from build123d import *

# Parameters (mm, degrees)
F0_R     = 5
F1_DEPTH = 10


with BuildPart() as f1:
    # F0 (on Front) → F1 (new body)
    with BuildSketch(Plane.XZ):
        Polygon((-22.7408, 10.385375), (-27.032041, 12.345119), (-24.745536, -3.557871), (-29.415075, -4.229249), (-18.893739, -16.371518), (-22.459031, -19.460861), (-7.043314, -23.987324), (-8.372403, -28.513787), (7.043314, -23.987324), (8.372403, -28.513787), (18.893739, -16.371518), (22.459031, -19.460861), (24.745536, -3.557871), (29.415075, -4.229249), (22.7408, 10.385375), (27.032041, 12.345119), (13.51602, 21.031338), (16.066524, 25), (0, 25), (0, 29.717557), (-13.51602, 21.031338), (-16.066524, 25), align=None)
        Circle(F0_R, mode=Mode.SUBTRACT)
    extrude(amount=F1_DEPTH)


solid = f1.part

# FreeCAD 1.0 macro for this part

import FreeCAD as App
import Part
import Sketcher

V = App.Vector
Q = App.Units.Quantity

doc = App.newDocument("Part")
body = doc.addObject("PartDesign::Body", "Body")

# Sketch on XZ plane
sketch1 = body.newObject("Sketcher::SketchObject", "Sketch")
sketch1.AttachmentSupport = (doc.getObject("XZ_Plane"), [""])
sketch1.MapMode = "FlatFace"
sketch1.addGeometry([
    Part.LineSegment(V(-22.7, 10.4, 0), V(-27, 12.3, 0)),  # 0
    Part.LineSegment(V(-27, 12.3, 0), V(-24.7, -3.6, 0)),  # 1
    Part.LineSegment(V(-24.7, -3.6, 0), V(-29.4, -4.2, 0)),  # 2
    Part.LineSegment(V(-29.4, -4.2, 0), V(-18.9, -16.4, 0)),  # 3
    Part.LineSegment(V(-18.9, -16.4, 0), V(-22.5, -19.5, 0)),  # 4
    Part.LineSegment(V(-22.5, -19.5, 0), V(-7, -24, 0)),  # 5
    Part.LineSegment(V(-7, -24, 0), V(-8.4, -28.5, 0)),  # 6
    Part.LineSegment(V(-8.4, -28.5, 0), V(7, -24, 0)),  # 7
    Part.LineSegment(V(7, -24, 0), V(8.4, -28.5, 0)),  # 8
    Part.LineSegment(V(8.4, -28.5, 0), V(18.9, -16.4, 0)),  # 9
    Part.LineSegment(V(18.9, -16.4, 0), V(22.5, -19.5, 0)),  # 10
    Part.LineSegment(V(22.5, -19.5, 0), V(24.7, -3.6, 0)),  # 11
    Part.LineSegment(V(24.7, -3.6, 0), V(29.4, -4.2, 0)),  # 12
    Part.LineSegment(V(29.4, -4.2, 0), V(22.7, 10.4, 0)),  # 13
    Part.LineSegment(V(22.7, 10.4, 0), V(27, 12.3, 0)),  # 14
    Part.LineSegment(V(27, 12.3, 0), V(13.5, 21, 0)),  # 15
    Part.LineSegment(V(13.5, 21, 0), V(16.1, 25, 0)),  # 16
    Part.LineSegment(V(16.1, 25, 0), V(0, 25, 0)),  # 17
    Part.LineSegment(V(0, 25, 0), V(0, 29.7, 0)),  # 18
    Part.LineSegment(V(0, 29.7, 0), V(-13.5, 21, 0)),  # 19
    Part.LineSegment(V(-13.5, 21, 0), V(-16.1, 25, 0)),  # 20
    Part.LineSegment(V(-16.1, 25, 0), V(-22.7, 10.4, 0)),  # 21
    Part.Circle(V(0, 0, 0), V(0, 0, 1), 5),  # 22
], False)
sketch1.addConstraint([
    Sketcher.Constraint("Coincident", 0, 2, 1, 1),
    Sketcher.Constraint("Coincident", 1, 2, 2, 1),
    Sketcher.Constraint("Coincident", 2, 2, 3, 1),
    Sketcher.Constraint("Coincident", 3, 2, 4, 1),
    Sketcher.Constraint("Coincident", 4, 2, 5, 1),
    Sketcher.Constraint("Coincident", 5, 2, 6, 1),
    Sketcher.Constraint("Coincident", 6, 2, 7, 1),
    Sketcher.Constraint("Coincident", 7, 2, 8, 1),
    Sketcher.Constraint("Coincident", 8, 2, 9, 1),
    Sketcher.Constraint("Coincident", 9, 2, 10, 1),
    Sketcher.Constraint("Coincident", 10, 2, 11, 1),
    Sketcher.Constraint("Coincident", 11, 2, 12, 1),
    Sketcher.Constraint("Coincident", 12, 2, 13, 1),
    Sketcher.Constraint("Coincident", 13, 2, 14, 1),
    Sketcher.Constraint("Coincident", 14, 2, 15, 1),
    Sketcher.Constraint("Coincident", 15, 2, 16, 1),
    Sketcher.Constraint("Coincident", 16, 2, 17, 1),
    Sketcher.Constraint("Coincident", 17, 2, 18, 1),
    Sketcher.Constraint("Coincident", 18, 2, 19, 1),
    Sketcher.Constraint("Coincident", 19, 2, 20, 1),
    Sketcher.Constraint("Coincident", 20, 2, 21, 1),
    Sketcher.Constraint("Coincident", 21, 2, 0, 1),
    Sketcher.Constraint("Horizontal", 17),
    Sketcher.Constraint("Vertical", 18),
    Sketcher.Constraint("Coincident", 22, 3, -1, 1),
    Sketcher.Constraint("Symmetric", 5, 2, 7, 2, -2),
    Sketcher.Constraint("Symmetric", 6, 2, 8, 2, -2),
    Sketcher.Constraint("Symmetric", 3, 2, 9, 2, -2),
    Sketcher.Constraint("Symmetric", 4, 2, 10, 2, -2),
    Sketcher.Constraint("Symmetric", 1, 2, 11, 2, -2),
    Sketcher.Constraint("Symmetric", 2, 2, 12, 2, -2),
    Sketcher.Constraint("Symmetric", 0, 2, 14, 2, -2),
    Sketcher.Constraint("Symmetric", 15, 2, 19, 2, -2),
    Sketcher.Constraint("Symmetric", 16, 2, 20, 2, -2),
    Sketcher.Constraint("Symmetric", 13, 2, 21, 2, -2),
    Sketcher.Constraint("PointOnObject", 17, 2, -2),
    Sketcher.Constraint("Perpendicular", 1, 2),
    Sketcher.Constraint("Perpendicular", 3, 4),
    Sketcher.Constraint("Perpendicular", 5, 6),
    Sketcher.Constraint("Perpendicular", 7, 8),
    Sketcher.Constraint("Perpendicular", 9, 10),
    Sketcher.Constraint("Perpendicular", 11, 12),
    Sketcher.Constraint("Perpendicular", 13, 14),
    Sketcher.Constraint("Perpendicular", 15, 16),
    Sketcher.Constraint("Perpendicular", 19, 20),
    Sketcher.Constraint("Perpendicular", 0, 21),
    Sketcher.Constraint("Equal", 0, 2),
    Sketcher.Constraint("Equal", 1, 3),
    Sketcher.Constraint("Equal", 2, 4),
    Sketcher.Constraint("Equal", 3, 5),
    Sketcher.Constraint("Equal", 4, 6),
    Sketcher.Constraint("Equal", 5, 7),
    Sketcher.Constraint("Equal", 13, 15),
    Sketcher.Constraint("Equal", 14, 16),
    Sketcher.Constraint("Equal", 15, 19),
    Sketcher.Constraint("Diameter", 22, Q("10 mm")),
    Sketcher.Constraint("DistanceY", -1, 1, 16, 2, Q("25 mm")),
    Sketcher.Constraint("DistanceX", -1, 1, 13, 2, Q("22.7408 mm")),
])
pad1 = body.newObject("PartDesign::Pad", "Pad")
pad1.Profile = sketch1
pad1.Length = 10

doc.recompute()
